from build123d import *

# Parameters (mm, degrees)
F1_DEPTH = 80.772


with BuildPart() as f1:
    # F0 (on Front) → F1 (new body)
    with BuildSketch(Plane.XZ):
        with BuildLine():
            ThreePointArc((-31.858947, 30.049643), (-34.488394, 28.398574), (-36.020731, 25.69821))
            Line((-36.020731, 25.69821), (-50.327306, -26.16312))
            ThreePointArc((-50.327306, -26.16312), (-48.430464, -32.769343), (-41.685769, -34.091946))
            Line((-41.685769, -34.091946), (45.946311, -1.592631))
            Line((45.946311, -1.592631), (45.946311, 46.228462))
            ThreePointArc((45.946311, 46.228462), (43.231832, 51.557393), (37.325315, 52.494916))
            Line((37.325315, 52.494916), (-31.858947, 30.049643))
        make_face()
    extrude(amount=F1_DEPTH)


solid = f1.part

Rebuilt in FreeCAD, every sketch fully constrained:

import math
import FreeCAD as App
import Part
import Sketcher
from FreeCAD import Vector
Q = App.Units.Quantity

doc = App.newDocument("Part")
body = doc.addObject("PartDesign::Body", "Body")

# Sketch on XZ plane
sketch1 = body.newObject("Sketcher::SketchObject", "Sketch")
sketch1.AttachmentSupport = (doc.getObject("XZ_Plane"), [""])
sketch1.MapMode = "FlatFace"
sketch1.addGeometry([
    Part.ArcOfCircle(Part.Circle(Vector(-30, 24, 0), Vector(0, 0, 1), 6), math.radians(108), math.radians(165)),  # 0
    Part.LineSegment(Vector(-36, 26, 0), Vector(-50, -26, 0)),  # 1
    Part.ArcOfCircle(Part.Circle(Vector(-44, -28, 0), Vector(0, 0, 1), 7), math.radians(165), math.radians(290)),  # 2
    Part.LineSegment(Vector(-42, -34, 0), Vector(46, -2, 0)),  # 3
    Part.LineSegment(Vector(46, -2, 0), Vector(46, 46, 0)),  # 4
    Part.ArcOfCircle(Part.Circle(Vector(39, 46, 0), Vector(0, 0, 1), 7), math.radians(0), math.radians(108)),  # 5
    Part.LineSegment(Vector(37, 52, 0), Vector(-32, 30, 0)),  # 6
], False)
sketch1.addConstraint([
    Sketcher.Constraint("Tangent", 0, 2, 1, 1),
    Sketcher.Constraint("Tangent", 1, 2, 2, 1),
    Sketcher.Constraint("Tangent", 2, 2, 3, 1),
    Sketcher.Constraint("Coincident", 3, 2, 4, 1),
    Sketcher.Constraint("Tangent", 4, 2, 5, 1),
    Sketcher.Constraint("Tangent", 5, 2, 6, 1),
    Sketcher.Constraint("Tangent", 6, 2, 0, 1),
    Sketcher.Constraint("Vertical", 4),
    Sketcher.Constraint("Equal", 2, 5),
    Sketcher.Constraint("Radius", 0, Q("0.2499999 in")),
    Sketcher.Constraint("Radius", 2, 6.587987),
    Sketcher.Constraint("DistanceX", 2, 3, 5, 3, Q("3.2809 in")),
    Sketcher.Constraint("DistanceY", 0, 3, 5, 3, 22.218899),
    Sketcher.Constraint("DistanceY", 2, 3, 6, 2, 57.9647),
    Sketcher.Constraint("Distance", 3, 93.464362),
    Sketcher.Constraint("Distance", 6, 72.734121),
    Sketcher.Constraint("DistanceX", 0, 3, -1, 1, 29.899379),
    Sketcher.Constraint("DistanceY", -1, 1, 5, 3, 46.228462),
])
pad1 = body.newObject("PartDesign::Pad", "Pad")
pad1.Profile = sketch1
pad1.Length = Q("3.18 in")

doc.recompute()
